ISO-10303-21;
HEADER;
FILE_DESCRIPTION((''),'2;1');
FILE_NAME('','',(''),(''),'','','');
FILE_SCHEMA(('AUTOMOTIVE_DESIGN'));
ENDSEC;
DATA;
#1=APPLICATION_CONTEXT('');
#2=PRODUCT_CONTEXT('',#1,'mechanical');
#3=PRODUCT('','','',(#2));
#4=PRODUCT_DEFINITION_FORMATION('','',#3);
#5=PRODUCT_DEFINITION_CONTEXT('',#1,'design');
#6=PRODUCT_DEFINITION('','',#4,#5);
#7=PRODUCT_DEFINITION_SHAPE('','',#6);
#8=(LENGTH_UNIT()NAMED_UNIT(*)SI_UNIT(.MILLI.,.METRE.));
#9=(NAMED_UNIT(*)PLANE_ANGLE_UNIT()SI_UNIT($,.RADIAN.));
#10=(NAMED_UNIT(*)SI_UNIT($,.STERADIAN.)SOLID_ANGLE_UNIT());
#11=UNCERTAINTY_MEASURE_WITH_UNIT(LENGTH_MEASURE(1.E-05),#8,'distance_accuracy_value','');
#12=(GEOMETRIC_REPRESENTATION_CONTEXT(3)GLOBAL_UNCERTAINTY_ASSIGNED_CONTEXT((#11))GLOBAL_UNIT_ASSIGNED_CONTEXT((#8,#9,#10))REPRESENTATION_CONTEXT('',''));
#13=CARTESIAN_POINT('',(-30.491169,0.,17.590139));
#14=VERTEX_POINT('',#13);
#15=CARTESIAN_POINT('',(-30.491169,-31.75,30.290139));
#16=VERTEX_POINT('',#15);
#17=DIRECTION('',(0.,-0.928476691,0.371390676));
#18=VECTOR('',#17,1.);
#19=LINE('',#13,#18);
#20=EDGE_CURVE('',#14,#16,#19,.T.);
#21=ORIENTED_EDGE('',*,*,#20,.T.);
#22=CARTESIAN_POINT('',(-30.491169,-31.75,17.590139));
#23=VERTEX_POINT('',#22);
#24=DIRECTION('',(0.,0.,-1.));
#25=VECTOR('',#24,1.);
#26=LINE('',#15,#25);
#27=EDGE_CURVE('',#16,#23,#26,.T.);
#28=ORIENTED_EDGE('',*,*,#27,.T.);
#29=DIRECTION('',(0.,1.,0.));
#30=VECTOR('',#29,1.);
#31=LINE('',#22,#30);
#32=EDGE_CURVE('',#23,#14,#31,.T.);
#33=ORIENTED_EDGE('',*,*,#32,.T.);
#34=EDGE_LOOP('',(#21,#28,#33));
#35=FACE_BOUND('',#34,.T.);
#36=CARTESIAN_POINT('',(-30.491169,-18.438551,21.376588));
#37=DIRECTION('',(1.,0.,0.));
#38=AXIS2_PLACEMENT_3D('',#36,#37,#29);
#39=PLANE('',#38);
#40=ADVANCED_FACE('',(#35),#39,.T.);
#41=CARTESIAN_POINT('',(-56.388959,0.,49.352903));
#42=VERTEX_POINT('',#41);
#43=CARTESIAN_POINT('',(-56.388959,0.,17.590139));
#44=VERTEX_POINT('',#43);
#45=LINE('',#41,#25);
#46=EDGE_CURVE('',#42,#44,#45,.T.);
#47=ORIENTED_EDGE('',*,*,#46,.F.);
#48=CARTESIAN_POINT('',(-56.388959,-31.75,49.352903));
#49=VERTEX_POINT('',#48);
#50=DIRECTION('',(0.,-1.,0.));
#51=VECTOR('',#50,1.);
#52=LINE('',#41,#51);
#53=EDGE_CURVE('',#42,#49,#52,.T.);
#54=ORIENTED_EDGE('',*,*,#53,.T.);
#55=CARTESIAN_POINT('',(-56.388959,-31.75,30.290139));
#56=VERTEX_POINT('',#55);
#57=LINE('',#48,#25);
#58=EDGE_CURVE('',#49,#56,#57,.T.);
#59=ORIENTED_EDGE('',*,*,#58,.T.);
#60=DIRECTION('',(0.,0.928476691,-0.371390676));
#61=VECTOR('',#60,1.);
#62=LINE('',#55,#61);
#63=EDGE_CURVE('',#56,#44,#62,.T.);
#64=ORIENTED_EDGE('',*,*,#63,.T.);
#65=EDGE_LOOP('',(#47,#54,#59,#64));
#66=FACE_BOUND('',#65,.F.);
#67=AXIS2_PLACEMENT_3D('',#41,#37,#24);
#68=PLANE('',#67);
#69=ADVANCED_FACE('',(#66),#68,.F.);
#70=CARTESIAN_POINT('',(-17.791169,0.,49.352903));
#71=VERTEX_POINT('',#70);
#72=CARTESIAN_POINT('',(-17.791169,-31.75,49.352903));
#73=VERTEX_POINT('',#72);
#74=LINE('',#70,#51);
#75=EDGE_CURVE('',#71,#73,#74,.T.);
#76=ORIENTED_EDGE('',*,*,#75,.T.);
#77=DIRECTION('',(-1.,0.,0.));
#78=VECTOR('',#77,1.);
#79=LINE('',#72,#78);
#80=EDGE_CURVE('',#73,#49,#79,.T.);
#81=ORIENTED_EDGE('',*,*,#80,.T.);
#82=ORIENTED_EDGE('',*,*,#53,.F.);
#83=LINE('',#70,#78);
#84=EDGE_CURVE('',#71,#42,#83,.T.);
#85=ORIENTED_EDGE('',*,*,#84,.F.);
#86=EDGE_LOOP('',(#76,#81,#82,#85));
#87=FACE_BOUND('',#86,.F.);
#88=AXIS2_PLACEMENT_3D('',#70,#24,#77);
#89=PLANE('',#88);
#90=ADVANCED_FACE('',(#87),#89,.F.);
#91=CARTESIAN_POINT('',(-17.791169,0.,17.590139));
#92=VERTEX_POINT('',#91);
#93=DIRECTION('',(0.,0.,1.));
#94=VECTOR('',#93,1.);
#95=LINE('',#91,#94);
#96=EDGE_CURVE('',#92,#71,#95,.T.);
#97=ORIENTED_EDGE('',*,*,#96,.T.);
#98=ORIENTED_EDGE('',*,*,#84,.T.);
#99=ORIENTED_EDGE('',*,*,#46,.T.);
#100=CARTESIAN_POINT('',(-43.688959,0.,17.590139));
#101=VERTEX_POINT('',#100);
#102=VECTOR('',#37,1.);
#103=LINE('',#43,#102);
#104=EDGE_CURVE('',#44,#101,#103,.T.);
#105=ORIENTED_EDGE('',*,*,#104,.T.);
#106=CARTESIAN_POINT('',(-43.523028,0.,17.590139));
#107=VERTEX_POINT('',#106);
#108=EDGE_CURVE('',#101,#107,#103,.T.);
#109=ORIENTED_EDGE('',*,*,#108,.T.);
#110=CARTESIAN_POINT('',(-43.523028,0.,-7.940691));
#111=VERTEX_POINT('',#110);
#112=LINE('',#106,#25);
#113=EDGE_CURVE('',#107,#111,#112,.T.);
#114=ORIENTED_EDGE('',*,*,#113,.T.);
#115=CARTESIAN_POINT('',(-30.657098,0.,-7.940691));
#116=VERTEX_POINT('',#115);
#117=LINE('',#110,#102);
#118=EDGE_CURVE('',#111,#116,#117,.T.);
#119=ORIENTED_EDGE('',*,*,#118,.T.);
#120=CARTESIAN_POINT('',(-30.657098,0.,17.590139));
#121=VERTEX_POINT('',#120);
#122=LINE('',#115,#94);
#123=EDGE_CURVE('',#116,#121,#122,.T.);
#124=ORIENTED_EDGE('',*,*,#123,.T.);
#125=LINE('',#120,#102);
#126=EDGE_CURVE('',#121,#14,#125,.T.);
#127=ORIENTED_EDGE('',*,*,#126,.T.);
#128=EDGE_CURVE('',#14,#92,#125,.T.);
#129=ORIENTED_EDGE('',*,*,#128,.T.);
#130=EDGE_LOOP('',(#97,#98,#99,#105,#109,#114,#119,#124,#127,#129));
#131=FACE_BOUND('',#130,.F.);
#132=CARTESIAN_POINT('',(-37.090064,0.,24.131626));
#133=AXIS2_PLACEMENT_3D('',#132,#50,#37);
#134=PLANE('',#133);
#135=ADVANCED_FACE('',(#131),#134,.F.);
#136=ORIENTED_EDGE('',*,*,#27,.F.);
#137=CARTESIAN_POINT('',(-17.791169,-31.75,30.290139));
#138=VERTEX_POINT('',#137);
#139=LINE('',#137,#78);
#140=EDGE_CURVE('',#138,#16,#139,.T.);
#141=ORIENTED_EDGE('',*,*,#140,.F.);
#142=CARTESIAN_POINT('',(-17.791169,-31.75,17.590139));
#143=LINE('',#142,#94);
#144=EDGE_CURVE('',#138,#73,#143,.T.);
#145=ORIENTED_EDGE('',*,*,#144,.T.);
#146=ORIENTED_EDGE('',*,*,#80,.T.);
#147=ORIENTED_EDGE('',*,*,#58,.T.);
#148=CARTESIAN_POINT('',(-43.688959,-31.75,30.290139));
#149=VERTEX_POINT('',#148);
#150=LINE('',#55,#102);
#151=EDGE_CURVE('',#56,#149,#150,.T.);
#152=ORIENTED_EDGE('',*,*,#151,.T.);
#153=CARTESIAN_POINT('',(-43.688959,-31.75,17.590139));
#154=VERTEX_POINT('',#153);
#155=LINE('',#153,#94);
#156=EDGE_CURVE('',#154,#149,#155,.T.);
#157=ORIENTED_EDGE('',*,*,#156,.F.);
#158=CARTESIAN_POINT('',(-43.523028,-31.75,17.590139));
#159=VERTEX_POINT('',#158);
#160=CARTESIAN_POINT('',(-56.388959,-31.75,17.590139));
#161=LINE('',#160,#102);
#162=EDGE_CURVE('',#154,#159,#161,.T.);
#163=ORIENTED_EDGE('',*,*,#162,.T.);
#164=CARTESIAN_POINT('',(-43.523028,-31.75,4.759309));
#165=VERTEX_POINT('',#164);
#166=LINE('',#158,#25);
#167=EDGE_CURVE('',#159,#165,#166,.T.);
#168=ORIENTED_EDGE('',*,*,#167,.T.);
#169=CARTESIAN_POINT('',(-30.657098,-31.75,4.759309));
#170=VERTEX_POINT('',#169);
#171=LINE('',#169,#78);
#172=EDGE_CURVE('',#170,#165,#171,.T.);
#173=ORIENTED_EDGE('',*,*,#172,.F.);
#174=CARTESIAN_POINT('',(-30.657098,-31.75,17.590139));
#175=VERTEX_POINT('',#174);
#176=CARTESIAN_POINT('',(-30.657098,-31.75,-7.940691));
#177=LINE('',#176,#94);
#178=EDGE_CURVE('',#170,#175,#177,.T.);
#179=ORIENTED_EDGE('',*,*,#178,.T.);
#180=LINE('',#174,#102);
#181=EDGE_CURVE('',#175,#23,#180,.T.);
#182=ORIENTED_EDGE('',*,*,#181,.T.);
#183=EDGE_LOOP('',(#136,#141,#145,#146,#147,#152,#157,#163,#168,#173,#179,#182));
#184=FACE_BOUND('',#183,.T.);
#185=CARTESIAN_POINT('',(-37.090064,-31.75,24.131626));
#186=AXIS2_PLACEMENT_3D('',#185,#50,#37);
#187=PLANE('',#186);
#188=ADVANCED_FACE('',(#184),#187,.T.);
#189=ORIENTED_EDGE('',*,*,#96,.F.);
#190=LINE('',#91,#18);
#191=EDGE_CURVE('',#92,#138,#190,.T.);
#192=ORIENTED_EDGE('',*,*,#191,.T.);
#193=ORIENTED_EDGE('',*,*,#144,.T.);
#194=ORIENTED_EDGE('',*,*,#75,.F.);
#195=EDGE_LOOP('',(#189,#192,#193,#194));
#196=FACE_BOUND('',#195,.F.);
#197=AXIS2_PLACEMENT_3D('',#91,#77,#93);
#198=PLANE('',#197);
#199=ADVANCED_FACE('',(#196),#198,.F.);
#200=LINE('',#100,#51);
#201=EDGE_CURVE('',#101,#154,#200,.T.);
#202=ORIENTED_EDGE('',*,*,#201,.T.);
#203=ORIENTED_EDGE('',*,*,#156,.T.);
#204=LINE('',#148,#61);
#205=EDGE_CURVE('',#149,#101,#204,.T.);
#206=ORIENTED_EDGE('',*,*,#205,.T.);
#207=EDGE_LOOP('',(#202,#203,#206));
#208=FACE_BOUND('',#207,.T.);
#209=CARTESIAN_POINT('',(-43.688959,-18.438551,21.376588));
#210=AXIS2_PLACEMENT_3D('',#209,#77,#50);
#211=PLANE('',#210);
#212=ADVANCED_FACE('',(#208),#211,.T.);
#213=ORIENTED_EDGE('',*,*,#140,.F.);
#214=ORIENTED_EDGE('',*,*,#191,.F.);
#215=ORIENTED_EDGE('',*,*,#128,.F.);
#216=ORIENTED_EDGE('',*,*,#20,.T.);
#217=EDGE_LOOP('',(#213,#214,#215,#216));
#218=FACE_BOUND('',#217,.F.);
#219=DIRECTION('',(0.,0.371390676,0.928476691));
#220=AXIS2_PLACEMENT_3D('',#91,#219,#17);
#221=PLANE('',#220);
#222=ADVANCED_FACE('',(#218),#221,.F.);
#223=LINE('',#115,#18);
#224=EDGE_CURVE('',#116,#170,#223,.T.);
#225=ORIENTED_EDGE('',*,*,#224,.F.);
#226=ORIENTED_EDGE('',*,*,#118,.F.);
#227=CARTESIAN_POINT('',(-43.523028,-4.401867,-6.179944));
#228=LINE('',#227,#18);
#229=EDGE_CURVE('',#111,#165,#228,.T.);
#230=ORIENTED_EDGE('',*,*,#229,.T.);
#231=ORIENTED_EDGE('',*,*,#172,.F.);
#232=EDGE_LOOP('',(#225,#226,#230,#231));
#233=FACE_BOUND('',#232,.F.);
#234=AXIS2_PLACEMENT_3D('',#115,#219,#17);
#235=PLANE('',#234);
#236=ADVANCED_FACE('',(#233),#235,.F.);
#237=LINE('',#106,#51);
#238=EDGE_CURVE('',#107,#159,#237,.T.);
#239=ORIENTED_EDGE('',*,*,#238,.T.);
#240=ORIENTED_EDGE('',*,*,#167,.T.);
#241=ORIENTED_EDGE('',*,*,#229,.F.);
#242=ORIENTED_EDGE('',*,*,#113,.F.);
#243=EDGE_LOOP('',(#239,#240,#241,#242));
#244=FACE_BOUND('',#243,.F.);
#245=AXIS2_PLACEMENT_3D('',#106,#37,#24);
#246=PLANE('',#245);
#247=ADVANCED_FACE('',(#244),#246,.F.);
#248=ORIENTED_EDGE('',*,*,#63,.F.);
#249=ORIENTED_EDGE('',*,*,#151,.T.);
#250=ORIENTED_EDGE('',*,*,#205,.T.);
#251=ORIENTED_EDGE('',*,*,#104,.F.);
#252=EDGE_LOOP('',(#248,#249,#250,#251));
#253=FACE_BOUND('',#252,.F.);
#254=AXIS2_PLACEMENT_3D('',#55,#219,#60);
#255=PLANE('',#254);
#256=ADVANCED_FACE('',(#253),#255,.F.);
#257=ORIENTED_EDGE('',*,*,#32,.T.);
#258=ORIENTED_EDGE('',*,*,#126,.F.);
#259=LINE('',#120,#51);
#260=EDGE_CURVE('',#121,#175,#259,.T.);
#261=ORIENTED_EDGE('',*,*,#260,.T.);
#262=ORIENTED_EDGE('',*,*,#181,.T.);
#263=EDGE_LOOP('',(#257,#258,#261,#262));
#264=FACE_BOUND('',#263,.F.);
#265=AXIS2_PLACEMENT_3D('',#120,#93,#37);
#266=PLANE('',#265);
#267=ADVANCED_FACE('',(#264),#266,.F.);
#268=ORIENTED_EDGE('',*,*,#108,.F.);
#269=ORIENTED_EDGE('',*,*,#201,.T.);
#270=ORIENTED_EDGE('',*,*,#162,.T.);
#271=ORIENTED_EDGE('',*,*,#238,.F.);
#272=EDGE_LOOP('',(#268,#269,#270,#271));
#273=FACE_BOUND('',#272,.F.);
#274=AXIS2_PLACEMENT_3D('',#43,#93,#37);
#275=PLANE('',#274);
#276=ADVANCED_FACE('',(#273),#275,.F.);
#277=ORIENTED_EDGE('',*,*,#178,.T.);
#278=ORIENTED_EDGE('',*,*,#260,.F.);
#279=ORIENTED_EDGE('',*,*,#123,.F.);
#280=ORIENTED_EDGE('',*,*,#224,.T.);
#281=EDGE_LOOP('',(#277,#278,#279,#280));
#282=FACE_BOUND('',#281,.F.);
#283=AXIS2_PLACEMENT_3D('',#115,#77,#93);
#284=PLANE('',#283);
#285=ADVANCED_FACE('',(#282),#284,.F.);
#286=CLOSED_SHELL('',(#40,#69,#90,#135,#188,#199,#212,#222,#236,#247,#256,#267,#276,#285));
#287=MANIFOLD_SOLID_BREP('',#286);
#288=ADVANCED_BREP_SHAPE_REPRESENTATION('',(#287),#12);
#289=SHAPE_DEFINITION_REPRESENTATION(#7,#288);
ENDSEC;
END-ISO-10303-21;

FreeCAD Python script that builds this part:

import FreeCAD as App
import Part
import Sketcher
from FreeCAD import Vector
Q = App.Units.Quantity


def add_polygon(sketch, points):
    """Adds a closed chain of lines whose ends are joined by coincident constraints."""
    first, n = sketch.GeometryCount, len(points)
    for a, b in zip(points, points[1:] + points[:1]):
        sketch.addGeometry(Part.LineSegment(App.Vector(*a, 0), App.Vector(*b, 0)), False)
    for i in range(n):
        sketch.addConstraint(Sketcher.Constraint("Coincident", first + i, 2, first + (i + 1) % n, 1))

doc = App.newDocument("Part")
params = doc.addObject("Spreadsheet::Sheet", "Params")
for row, (alias, value) in enumerate([
    ("pad1_length", "1.25 in"),
    ("sketch2_height", "0.5 in"),
    ("sketch2_width", "1.25 in"),
    ("sketch3_height", "0.5 in"),
    ("sketch3_width", "1.25 in"),
    ("pocket2_length", "0.5 in"),
    ("sketch4_height", "0.5 in"),
    ("sketch4_width", "1.25 in"),
    ("pocket3_length", "0.5 in"),
], start=1):
    params.set(f"A{row}", alias)
    params.set(f"B{row}", "=" + value)
    params.setAlias(f"B{row}", alias)

body = doc.addObject("PartDesign::Body", "Body")

# Sketch on XZ plane
sketch1 = body.newObject("Sketcher::SketchObject", "Sketch")
sketch1.AttachmentSupport = (doc.getObject("XZ_Plane"), [""])
sketch1.MapMode = "FlatFace"
add_polygon(sketch1, [(-18, 49), (-56, 49), (-56, 18), (-44, 18), (-44, -8), (-31, -8), (-31, 18), (-18, 18)])  # lines 0-7
sketch1.addConstraint([
    Sketcher.Constraint("Horizontal", 0),
    Sketcher.Constraint("Vertical", 1),
    Sketcher.Constraint("Horizontal", 2),
    Sketcher.Constraint("Vertical", 3),
    Sketcher.Constraint("Horizontal", 4),
    Sketcher.Constraint("Vertical", 5),
    Sketcher.Constraint("Horizontal", 6),
    Sketcher.Constraint("Vertical", 7),
    Sketcher.Constraint("Horizontal", 2, 2, 5, 2),
    Sketcher.Constraint("Equal", 2, 4),
    Sketcher.Constraint("Equal", 4, 6),
    Sketcher.Constraint("DistanceX", 0, 2, 0, 1, Q("38.59779 mm")),
    Sketcher.Constraint("DistanceY", 3, 2, 3, 1, Q("25.53083 mm")),
    Sketcher.Constraint("DistanceX", 4, 2, -1, 1, Q("30.657098 mm")),
    Sketcher.Constraint("DistanceY", 1, 2, 1, 1, Q("31.762764 mm")),
    Sketcher.Constraint("DistanceY", -1, 1, 1, 2, Q("17.590139 mm")),
])
pad1 = body.newObject("PartDesign::Pad", "Pad")
pad1.Profile = sketch1
pad1.setExpression("Length", "Params.pad1_length")

# Sketch on YZ plane
sketch2 = body.newObject("Sketcher::SketchObject", "Sketch001")
sketch2.AttachmentSupport = (doc.getObject("YZ_Plane"), [""])
sketch2.MapMode = "FlatFace"
sketch2.AttachmentOffset = App.Placement(Vector(0, 0, -30.657098), App.Rotation())
add_polygon(sketch2, [(0, -8), (-32, 5), (-32, -8)])  # lines 0-2
sketch2.addConstraint([
    Sketcher.Constraint("Vertical", 1),
    Sketcher.Constraint("Horizontal", 2),
    Sketcher.Constraint("PointOnObject", 2, 2, -2),
    Sketcher.Constraint("DistanceY", 1, 2, 1, 1, Q("0.5 in")),
    Sketcher.Constraint("DistanceX", 2, 1, 2, 2, Q("1.25 in")),
    Sketcher.Constraint("DistanceY", -1, 1, 0, 2, Q("4.759309 mm")),
])
sketch2.setExpression("Constraints[6]", "Params.sketch2_height")
sketch2.setExpression("Constraints[7]", "Params.sketch2_width")
pocket1 = body.newObject("PartDesign::Pocket", "Pocket")
pocket1.Profile = sketch2
pocket1.Type = "ThroughAll"

# Sketch on YZ plane
sketch3 = body.newObject("Sketcher::SketchObject", "Sketch002")
sketch3.AttachmentSupport = (doc.getObject("YZ_Plane"), [""])
sketch3.MapMode = "FlatFace"
sketch3.AttachmentOffset = App.Placement(Vector(0, 0, -56.388959), App.Rotation())
add_polygon(sketch3, [(-32, 18), (-32, 30), (0, 18)])  # lines 0-2
sketch3.addConstraint([
    Sketcher.Constraint("Vertical", 0),
    Sketcher.Constraint("Horizontal", 2),
    Sketcher.Constraint("PointOnObject", 1, 2, -2),
    Sketcher.Constraint("DistanceY", 0, 1, 0, 2, Q("0.5 in")),
    Sketcher.Constraint("DistanceX", 2, 2, 2, 1, Q("1.25 in")),
    Sketcher.Constraint("DistanceY", -1, 1, 0, 2, Q("30.290139 mm")),
])
sketch3.setExpression("Constraints[6]", "Params.sketch3_height")
sketch3.setExpression("Constraints[7]", "Params.sketch3_width")
pocket2 = body.newObject("PartDesign::Pocket", "Pocket001")
pocket2.Profile = sketch3
pocket2.setExpression("Length", "Params.pocket2_length")
pocket2.Reversed = True

# Sketch on YZ plane
sketch4 = body.newObject("Sketcher::SketchObject", "Sketch003")
sketch4.AttachmentSupport = (doc.getObject("YZ_Plane"), [""])
sketch4.MapMode = "FlatFace"
sketch4.AttachmentOffset = App.Placement(Vector(0, 0, -17.791169), App.Rotation())
add_polygon(sketch4, [(0, 18), (-32, 30), (-32, 18)])  # lines 0-2
sketch4.addConstraint([
    Sketcher.Constraint("Vertical", 1),
    Sketcher.Constraint("Horizontal", 2),
    Sketcher.Constraint("PointOnObject", 2, 2, -2),
    Sketcher.Constraint("DistanceY", 1, 2, 1, 1, Q("0.5 in")),
    Sketcher.Constraint("DistanceX", 2, 1, 2, 2, Q("1.25 in")),
    Sketcher.Constraint("DistanceY", -1, 1, 0, 2, Q("30.290139 mm")),
])
sketch4.setExpression("Constraints[6]", "Params.sketch4_height")
sketch4.setExpression("Constraints[7]", "Params.sketch4_width")
pocket3 = body.newObject("PartDesign::Pocket", "Pocket002")
pocket3.Profile = sketch4
pocket3.setExpression("Length", "Params.pocket3_length")

doc.recompute()
